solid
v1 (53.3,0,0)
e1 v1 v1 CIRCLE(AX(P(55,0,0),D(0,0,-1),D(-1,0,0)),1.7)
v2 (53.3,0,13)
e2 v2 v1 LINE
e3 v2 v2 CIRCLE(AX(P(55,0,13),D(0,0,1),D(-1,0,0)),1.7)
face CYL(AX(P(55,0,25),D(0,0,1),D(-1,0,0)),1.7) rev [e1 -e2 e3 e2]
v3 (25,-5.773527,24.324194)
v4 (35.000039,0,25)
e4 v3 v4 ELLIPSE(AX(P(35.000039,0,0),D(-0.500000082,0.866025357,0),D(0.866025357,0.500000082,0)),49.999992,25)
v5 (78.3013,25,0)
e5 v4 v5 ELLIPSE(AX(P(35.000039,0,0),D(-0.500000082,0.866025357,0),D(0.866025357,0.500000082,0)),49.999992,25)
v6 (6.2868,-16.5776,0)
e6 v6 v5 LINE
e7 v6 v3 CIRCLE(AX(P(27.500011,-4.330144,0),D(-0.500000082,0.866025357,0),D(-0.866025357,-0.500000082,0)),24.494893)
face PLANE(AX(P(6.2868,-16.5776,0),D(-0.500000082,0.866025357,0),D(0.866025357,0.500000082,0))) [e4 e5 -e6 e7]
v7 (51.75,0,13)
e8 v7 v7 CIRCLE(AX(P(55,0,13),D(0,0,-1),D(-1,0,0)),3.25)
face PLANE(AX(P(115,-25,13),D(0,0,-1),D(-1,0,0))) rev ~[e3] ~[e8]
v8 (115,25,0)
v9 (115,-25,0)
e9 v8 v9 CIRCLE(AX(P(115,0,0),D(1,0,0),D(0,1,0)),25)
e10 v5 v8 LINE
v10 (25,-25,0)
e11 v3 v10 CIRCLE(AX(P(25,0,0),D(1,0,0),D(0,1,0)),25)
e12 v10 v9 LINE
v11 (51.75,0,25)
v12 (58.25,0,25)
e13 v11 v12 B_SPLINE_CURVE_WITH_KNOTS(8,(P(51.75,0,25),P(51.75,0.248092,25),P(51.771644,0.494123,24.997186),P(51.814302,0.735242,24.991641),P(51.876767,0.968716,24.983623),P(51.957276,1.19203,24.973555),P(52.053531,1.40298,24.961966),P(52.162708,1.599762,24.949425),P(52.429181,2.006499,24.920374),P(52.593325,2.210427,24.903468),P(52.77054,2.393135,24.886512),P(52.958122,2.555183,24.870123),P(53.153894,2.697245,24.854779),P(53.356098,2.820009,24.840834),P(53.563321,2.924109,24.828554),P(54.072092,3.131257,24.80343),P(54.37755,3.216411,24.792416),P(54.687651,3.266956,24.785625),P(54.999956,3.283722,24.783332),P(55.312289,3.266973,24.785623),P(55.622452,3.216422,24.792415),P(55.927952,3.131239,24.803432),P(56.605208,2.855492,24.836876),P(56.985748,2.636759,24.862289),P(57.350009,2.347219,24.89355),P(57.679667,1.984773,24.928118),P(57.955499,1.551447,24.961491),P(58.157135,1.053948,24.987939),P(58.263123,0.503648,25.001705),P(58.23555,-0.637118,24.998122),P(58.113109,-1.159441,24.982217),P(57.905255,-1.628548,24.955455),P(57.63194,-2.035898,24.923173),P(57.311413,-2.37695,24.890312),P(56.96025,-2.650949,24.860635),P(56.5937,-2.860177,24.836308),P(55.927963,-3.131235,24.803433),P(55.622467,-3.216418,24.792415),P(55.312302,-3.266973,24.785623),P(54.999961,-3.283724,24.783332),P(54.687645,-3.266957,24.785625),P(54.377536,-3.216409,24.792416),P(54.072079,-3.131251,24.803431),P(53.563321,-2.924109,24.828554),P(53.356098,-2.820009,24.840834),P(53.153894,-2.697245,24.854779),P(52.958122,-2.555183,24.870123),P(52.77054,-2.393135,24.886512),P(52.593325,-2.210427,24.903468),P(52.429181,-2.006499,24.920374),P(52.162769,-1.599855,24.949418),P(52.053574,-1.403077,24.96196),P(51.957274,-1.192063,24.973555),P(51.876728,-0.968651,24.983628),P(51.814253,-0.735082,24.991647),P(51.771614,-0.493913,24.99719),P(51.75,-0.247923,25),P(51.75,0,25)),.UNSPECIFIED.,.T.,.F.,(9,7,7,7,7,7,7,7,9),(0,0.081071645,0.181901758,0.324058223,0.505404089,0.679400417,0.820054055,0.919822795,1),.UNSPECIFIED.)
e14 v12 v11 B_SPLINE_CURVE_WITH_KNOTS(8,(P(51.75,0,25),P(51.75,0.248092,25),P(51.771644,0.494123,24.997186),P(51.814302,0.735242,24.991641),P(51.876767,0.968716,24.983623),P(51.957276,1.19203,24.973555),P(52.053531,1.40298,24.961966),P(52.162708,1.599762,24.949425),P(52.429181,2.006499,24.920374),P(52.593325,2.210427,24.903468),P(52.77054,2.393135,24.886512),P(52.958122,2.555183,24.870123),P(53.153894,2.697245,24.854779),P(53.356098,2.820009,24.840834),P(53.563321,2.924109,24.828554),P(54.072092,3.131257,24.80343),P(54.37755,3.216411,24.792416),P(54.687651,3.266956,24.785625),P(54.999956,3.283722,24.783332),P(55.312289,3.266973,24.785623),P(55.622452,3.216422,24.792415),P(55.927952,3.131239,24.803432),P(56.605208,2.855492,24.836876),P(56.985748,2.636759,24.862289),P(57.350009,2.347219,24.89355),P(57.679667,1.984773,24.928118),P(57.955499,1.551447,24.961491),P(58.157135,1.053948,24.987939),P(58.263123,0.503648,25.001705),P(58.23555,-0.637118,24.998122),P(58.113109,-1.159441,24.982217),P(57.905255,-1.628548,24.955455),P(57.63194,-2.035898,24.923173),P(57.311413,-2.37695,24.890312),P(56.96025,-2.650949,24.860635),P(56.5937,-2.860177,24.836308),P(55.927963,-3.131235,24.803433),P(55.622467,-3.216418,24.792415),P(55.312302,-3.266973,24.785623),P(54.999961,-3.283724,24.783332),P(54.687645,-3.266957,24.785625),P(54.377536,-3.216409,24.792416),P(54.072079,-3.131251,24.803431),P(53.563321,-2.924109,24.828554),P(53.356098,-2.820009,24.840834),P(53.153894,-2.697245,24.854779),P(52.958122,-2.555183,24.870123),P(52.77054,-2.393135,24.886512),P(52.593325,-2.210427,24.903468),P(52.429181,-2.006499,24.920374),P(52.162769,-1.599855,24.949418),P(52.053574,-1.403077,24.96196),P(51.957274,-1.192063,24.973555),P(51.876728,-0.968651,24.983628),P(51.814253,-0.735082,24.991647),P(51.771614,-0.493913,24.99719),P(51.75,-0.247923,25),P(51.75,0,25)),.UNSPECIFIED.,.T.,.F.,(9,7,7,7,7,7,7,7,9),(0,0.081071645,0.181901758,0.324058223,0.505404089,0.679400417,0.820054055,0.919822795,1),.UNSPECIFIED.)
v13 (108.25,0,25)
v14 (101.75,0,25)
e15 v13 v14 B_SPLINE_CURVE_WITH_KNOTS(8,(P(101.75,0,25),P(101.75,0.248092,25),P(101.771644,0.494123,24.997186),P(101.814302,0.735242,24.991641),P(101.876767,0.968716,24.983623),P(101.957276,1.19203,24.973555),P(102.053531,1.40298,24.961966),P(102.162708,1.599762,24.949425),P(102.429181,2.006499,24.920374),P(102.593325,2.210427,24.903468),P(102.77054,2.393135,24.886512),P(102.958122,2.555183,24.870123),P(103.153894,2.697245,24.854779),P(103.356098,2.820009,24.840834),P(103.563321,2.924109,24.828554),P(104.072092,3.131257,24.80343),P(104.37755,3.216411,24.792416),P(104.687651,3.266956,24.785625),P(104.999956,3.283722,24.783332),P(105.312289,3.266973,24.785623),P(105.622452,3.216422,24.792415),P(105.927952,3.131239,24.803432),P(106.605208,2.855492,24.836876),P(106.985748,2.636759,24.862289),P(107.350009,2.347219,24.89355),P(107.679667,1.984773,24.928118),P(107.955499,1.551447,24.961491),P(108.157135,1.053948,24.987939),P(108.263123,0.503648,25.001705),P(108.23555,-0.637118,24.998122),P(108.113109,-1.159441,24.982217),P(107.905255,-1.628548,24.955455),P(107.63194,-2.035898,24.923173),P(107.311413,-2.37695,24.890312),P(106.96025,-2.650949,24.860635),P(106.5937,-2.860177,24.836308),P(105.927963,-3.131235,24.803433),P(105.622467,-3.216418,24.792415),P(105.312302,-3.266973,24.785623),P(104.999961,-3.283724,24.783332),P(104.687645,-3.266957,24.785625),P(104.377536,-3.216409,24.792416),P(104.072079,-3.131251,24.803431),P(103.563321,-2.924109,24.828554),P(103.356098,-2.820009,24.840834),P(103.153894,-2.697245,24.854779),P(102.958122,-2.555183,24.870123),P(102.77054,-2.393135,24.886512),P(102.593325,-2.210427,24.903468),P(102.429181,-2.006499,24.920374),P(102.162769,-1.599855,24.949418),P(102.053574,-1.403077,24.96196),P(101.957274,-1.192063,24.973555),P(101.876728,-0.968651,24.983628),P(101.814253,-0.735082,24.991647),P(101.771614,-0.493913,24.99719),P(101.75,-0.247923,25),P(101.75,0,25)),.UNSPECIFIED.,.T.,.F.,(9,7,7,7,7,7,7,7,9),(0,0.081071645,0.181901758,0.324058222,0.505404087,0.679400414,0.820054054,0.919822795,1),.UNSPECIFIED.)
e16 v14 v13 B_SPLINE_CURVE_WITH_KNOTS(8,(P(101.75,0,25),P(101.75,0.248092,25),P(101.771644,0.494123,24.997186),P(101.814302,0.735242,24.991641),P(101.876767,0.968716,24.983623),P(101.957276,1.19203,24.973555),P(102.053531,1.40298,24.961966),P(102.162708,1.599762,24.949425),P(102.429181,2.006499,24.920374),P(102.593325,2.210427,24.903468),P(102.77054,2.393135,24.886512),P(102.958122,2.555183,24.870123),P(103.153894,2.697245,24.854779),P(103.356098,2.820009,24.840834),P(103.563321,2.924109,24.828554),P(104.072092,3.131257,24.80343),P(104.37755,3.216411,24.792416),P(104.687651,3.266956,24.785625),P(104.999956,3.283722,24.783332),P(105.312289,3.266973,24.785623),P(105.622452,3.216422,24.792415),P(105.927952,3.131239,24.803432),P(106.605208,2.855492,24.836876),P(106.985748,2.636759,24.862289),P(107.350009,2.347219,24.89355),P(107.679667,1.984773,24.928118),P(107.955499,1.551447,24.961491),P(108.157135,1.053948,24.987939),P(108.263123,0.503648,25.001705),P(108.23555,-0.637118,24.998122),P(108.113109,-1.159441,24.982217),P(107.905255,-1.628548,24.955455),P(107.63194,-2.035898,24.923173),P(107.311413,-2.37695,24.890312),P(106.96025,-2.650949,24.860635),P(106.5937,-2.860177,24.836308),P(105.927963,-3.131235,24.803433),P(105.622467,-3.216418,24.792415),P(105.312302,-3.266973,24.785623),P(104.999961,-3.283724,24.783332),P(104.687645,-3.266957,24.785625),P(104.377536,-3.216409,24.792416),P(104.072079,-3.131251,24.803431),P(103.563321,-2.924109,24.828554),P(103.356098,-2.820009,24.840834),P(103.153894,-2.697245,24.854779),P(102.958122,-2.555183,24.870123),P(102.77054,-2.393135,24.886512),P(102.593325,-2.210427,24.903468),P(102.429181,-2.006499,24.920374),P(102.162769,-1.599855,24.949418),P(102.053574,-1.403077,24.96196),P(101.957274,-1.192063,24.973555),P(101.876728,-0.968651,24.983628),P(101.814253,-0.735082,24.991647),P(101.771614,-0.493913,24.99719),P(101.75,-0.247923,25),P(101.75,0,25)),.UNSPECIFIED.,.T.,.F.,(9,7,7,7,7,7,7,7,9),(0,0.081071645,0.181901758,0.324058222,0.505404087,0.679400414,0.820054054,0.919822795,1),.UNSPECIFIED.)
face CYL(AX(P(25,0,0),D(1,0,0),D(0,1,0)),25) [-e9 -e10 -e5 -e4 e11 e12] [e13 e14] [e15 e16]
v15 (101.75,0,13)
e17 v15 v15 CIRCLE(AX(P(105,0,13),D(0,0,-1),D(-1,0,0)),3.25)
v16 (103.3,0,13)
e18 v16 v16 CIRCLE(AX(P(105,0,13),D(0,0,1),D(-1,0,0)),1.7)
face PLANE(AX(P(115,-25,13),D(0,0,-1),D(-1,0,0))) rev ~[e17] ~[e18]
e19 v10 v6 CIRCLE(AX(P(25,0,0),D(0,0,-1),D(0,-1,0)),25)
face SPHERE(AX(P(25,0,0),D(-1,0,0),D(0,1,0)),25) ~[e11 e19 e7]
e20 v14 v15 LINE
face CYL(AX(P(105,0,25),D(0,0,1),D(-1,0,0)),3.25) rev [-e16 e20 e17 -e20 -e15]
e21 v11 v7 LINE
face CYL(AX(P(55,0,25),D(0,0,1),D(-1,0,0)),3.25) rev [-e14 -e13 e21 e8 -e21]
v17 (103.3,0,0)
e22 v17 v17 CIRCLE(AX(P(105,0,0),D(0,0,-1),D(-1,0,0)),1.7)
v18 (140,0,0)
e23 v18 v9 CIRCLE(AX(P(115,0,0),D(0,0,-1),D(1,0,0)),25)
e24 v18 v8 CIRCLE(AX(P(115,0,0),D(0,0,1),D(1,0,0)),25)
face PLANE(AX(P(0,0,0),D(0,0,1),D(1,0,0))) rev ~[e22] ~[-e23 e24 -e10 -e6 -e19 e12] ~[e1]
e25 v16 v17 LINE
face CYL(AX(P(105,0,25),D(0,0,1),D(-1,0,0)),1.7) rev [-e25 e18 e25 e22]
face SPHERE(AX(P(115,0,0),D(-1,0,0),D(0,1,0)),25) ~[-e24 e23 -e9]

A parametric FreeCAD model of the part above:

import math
import FreeCAD as App
import Part
import Sketcher
from FreeCAD import Vector
Q = App.Units.Quantity

doc = App.newDocument("Part")
body = doc.addObject("PartDesign::Body", "Body")

sketch1 = body.newObject("Sketcher::SketchObject", "Sketch")
sketch1.AttachmentSupport = (doc.getObject("XY_Plane"), [""])
sketch1.MapMode = "FlatFace"
sketch1.addGeometry([
    Part.LineSegment(Vector(115, 25, 0), Vector(25, 25, 0)),
    Part.ArcOfCircle(Part.Circle(Vector(25, 0, 0), Vector(0, 0, 1), 25), math.radians(90), math.radians(180)),
    Part.LineSegment(Vector(0, 0, 0), Vector(140, 0, 0)),
    Part.ArcOfCircle(Part.Circle(Vector(115, 0, 0), Vector(0, 0, 1), 25), math.radians(0), math.radians(90)),
], False)
sketch1.addConstraint([
    Sketcher.Constraint("Tangent", 0, 2, 1, 1),
    Sketcher.Constraint("Coincident", 1, 2, 2, 1),
    Sketcher.Constraint("Coincident", 2, 2, 3, 1),
    Sketcher.Constraint("Tangent", 3, 2, 0, 1),
    Sketcher.Constraint("Horizontal", 0),
    Sketcher.Constraint("Horizontal", 2),
    Sketcher.Constraint("Coincident", 1, 2, -1, 1),
    Sketcher.Constraint("Equal", 1, 3),
    Sketcher.Constraint("PointOnObject", 1, 3, -1),
    Sketcher.Constraint("Radius", 1, 25.0),
    Sketcher.Constraint("DistanceX", 0, 2, 0, 1, 90.0),
])
revolution = body.newObject("PartDesign::Revolution", "Revolution")
revolution.Profile = sketch1
revolution.ReferenceAxis = (sketch1, ["H_Axis"])
revolution.Angle = 180

sketch2 = body.newObject("Sketcher::SketchObject", "Sketch001")
sketch2.AttachmentSupport = (doc.getObject("XY_Plane"), [""])
sketch2.MapMode = "FlatFace"
sketch2.addGeometry([
    Part.LineSegment(Vector(78, 25, 0), Vector(6, -17, 0)),
    Part.ArcOfCircle(Part.Circle(Vector(25, 0, 0), Vector(0, 0, 1), 25), math.radians(90), math.radians(222)),
    Part.LineSegment(Vector(25, 25, 0), Vector(78, 25, 0)),
], False)
sketch2.addConstraint([
    Sketcher.Constraint("Coincident", 0, 2, 1, 2),
    Sketcher.Constraint("Tangent", 1, 1, 2, 1),
    Sketcher.Constraint("Coincident", 2, 2, 0, 1),
    Sketcher.Constraint("Horizontal", 2),
    Sketcher.Constraint("PointOnObject", 1, 3, -1),
    Sketcher.Constraint("Radius", 1, 25.0),
    Sketcher.Constraint("Angle", 0, Q("-150 deg")),
    Sketcher.Constraint("DistanceX", -1, 1, 1, 3, 25.0),
    Sketcher.Constraint("DistanceX", 2, 1, 2, 2, 53.3013),
])
pocket1 = body.newObject("PartDesign::Pocket", "Pocket")
pocket1.Profile = sketch2
pocket1.Length = 25
pocket1.Reversed = True

sketch3 = body.newObject("Sketcher::SketchObject", "Sketch002")
sketch3.AttachmentSupport = (doc.getObject("XY_Plane"), [""])
sketch3.MapMode = "FlatFace"
sketch3.AttachmentOffset = App.Placement(Vector(0, 0, 25), App.Rotation())
sketch3.addGeometry([
    Part.Circle(Vector(105, 0, 0), Vector(0, 0, 1), 1.7),
    Part.Circle(Vector(55, 0, 0), Vector(0, 0, 1), 1.7),
], False)
sketch3.addConstraint([
    Sketcher.Constraint("Equal", 0, 1),
    Sketcher.Constraint("PointOnObject", 0, 3, -1),
    Sketcher.Constraint("PointOnObject", 1, 3, -1),
    Sketcher.Constraint("Diameter", 0, 3.4),
    Sketcher.Constraint("DistanceX", 1, 3, 0, 3, 50.0),
    Sketcher.Constraint("DistanceX", -1, 1, 0, 3, 105.0),
])
pocket2 = body.newObject("PartDesign::Pocket", "Pocket001")
pocket2.Profile = sketch3
pocket2.Length = 25

sketch4 = body.newObject("Sketcher::SketchObject", "Sketch003")
sketch4.AttachmentSupport = (doc.getObject("XY_Plane"), [""])
sketch4.MapMode = "FlatFace"
sketch4.AttachmentOffset = App.Placement(Vector(0, 0, 25), App.Rotation())
sketch4.addGeometry([
    Part.Circle(Vector(105, 0, 0), Vector(0, 0, 1), 3.2),
    Part.Circle(Vector(55, 0, 0), Vector(0, 0, 1), 3.2),
], False)
sketch4.addConstraint([
    Sketcher.Constraint("Equal", 0, 1),
    Sketcher.Constraint("PointOnObject", 0, 3, -1),
    Sketcher.Constraint("PointOnObject", 1, 3, -1),
    Sketcher.Constraint("Diameter", 0, 6.5),
    Sketcher.Constraint("DistanceX", -1, 1, 0, 3, 105.0),
    Sketcher.Constraint("DistanceX", -1, 1, 1, 3, 55.0),
])
pocket3 = body.newObject("PartDesign::Pocket", "Pocket002")
pocket3.Profile = sketch4
pocket3.Length = 12

doc.recompute()
